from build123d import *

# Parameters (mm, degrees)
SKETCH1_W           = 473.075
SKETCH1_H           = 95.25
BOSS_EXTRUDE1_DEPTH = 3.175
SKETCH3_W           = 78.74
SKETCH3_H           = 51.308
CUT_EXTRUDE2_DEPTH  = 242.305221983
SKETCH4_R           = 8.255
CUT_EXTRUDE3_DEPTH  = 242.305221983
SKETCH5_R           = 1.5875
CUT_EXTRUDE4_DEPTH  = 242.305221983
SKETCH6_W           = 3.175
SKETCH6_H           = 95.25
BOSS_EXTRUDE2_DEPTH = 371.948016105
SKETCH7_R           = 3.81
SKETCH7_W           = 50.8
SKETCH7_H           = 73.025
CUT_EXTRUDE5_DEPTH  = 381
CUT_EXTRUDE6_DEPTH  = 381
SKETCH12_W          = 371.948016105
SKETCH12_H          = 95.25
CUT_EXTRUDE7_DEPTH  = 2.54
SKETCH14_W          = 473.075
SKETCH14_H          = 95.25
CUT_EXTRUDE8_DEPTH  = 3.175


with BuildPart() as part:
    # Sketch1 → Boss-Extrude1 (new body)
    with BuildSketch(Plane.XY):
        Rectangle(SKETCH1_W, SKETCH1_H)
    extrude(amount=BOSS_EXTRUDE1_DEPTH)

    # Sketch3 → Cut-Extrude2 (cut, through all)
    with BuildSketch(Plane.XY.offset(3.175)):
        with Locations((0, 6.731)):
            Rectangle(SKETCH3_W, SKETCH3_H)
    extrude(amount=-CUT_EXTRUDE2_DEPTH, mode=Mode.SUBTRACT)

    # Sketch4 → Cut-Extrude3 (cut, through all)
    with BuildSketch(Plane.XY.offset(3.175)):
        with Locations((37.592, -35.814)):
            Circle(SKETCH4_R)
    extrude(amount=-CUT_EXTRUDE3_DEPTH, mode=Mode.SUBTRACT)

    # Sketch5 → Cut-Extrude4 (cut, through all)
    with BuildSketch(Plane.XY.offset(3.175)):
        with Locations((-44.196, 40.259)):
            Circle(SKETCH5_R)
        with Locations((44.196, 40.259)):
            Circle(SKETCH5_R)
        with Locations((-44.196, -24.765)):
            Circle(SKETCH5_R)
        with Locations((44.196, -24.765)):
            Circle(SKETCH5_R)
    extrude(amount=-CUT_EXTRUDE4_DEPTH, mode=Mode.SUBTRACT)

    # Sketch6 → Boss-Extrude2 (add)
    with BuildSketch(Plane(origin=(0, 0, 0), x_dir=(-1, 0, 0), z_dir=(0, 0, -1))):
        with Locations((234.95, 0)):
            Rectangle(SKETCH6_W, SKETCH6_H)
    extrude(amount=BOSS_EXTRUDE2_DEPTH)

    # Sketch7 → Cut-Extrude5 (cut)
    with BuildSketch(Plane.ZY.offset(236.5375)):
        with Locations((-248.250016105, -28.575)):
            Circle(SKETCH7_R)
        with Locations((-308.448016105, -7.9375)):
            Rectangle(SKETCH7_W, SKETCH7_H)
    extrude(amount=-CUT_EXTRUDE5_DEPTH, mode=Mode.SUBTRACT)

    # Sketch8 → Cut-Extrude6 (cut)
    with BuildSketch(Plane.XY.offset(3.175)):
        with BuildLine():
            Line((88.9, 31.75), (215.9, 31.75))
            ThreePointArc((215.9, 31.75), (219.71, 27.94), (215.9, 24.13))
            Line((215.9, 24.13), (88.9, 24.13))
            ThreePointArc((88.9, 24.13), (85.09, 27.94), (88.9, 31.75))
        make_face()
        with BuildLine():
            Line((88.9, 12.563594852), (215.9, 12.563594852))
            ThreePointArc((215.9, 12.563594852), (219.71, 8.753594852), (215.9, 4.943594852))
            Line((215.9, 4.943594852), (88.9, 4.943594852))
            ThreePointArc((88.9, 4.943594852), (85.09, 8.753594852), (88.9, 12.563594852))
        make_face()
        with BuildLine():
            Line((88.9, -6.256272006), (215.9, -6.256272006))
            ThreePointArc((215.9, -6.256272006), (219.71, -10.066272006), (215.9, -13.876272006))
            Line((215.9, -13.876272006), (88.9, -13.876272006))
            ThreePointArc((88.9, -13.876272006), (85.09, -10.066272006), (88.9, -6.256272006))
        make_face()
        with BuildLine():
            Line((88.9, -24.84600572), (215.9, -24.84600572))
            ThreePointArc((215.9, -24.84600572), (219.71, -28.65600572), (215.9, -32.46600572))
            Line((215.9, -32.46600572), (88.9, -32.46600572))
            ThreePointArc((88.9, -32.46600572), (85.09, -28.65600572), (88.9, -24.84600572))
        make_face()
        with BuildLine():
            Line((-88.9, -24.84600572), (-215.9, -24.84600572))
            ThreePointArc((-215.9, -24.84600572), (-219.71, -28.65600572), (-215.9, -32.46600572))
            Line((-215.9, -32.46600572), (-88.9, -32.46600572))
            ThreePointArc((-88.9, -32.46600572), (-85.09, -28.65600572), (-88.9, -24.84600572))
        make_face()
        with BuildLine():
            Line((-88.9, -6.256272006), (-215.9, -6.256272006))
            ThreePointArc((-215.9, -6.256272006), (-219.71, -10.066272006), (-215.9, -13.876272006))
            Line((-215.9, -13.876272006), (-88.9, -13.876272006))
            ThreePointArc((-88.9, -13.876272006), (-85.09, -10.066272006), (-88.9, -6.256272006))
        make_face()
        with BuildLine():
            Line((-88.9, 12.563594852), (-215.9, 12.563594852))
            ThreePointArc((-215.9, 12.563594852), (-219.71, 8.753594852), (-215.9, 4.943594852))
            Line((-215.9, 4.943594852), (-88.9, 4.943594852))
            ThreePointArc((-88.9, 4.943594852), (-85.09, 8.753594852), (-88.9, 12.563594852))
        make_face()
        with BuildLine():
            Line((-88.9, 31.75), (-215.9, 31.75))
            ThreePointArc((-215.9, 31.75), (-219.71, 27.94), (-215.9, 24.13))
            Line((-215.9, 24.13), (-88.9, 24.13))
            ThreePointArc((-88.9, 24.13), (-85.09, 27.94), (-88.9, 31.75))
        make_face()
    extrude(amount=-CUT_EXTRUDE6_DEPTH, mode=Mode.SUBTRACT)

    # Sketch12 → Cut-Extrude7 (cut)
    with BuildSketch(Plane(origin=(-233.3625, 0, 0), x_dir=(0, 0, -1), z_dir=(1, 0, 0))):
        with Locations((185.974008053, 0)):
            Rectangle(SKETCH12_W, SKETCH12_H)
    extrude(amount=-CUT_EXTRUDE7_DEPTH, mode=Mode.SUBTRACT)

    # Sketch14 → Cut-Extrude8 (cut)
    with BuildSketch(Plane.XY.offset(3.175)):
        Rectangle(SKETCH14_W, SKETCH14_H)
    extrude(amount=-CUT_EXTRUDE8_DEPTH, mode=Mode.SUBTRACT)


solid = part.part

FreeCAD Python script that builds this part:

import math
import FreeCAD as App
import Part
import Sketcher

V = App.Vector
Q = App.Units.Quantity

doc = App.newDocument("Part")
body = doc.addObject("PartDesign::Body", "Body")

sketch1 = doc.addObject("Sketcher::SketchObject", "Sketch")
body.addObject(sketch1)
sketch1.AttachmentSupport = (doc.XY_Plane, [""])
sketch1.MapMode = "FlatFace"
sketch1.addGeometry(Part.LineSegment(V(-237, 48, 0), V(-237, -48, 0)), False)
sketch1.addGeometry(Part.LineSegment(V(-237, -48, 0), V(237, -48, 0)), False)
sketch1.addGeometry(Part.LineSegment(V(237, -48, 0), V(237, 48, 0)), False)
sketch1.addGeometry(Part.LineSegment(V(237, 48, 0), V(-237, 48, 0)), False)
sketch1.addConstraint(Sketcher.Constraint("Coincident", 0, 2, 1, 1))
sketch1.addConstraint(Sketcher.Constraint("Coincident", 1, 2, 2, 1))
sketch1.addConstraint(Sketcher.Constraint("Coincident", 2, 2, 3, 1))
sketch1.addConstraint(Sketcher.Constraint("Coincident", 3, 2, 0, 1))
sketch1.addConstraint(Sketcher.Constraint("Vertical", 0))
sketch1.addConstraint(Sketcher.Constraint("Horizontal", 1))
sketch1.addConstraint(Sketcher.Constraint("Vertical", 2))
sketch1.addConstraint(Sketcher.Constraint("Horizontal", 3))
sketch1.addConstraint(Sketcher.Constraint("Symmetric", 0, 2, 2, 2, -1, 1))
sketch1.addConstraint(Sketcher.Constraint("DistanceY", 0, 2, 0, 1, Q("3.75 in")))
sketch1.addConstraint(Sketcher.Constraint("DistanceX", 1, 1, 1, 2, Q("18.625 in")))
pad1 = doc.addObject("PartDesign::Pad", "Pad")
body.addObject(pad1)
pad1.Profile = sketch1
pad1.Length = Q("0.125 in")

sketch2 = doc.addObject("Sketcher::SketchObject", "Sketch001")
body.addObject(sketch2)
sketch2.AttachmentSupport = (doc.XY_Plane, [""])
sketch2.MapMode = "FlatFace"
sketch2.AttachmentOffset = App.Placement(V(0, 0, 0.125 * 25.4), App.Rotation())
sketch2.addGeometry(Part.LineSegment(V(-39, 32, 0), V(-39, -19, 0)), False)
sketch2.addGeometry(Part.LineSegment(V(-39, -19, 0), V(39, -19, 0)), False)
sketch2.addGeometry(Part.LineSegment(V(39, -19, 0), V(39, 32, 0)), False)
sketch2.addGeometry(Part.LineSegment(V(39, 32, 0), V(-39, 32, 0)), False)
sketch2.addConstraint(Sketcher.Constraint("Coincident", 0, 2, 1, 1))
sketch2.addConstraint(Sketcher.Constraint("Coincident", 1, 2, 2, 1))
sketch2.addConstraint(Sketcher.Constraint("Coincident", 2, 2, 3, 1))
sketch2.addConstraint(Sketcher.Constraint("Coincident", 3, 2, 0, 1))
sketch2.addConstraint(Sketcher.Constraint("Vertical", 0))
sketch2.addConstraint(Sketcher.Constraint("Horizontal", 1))
sketch2.addConstraint(Sketcher.Constraint("Vertical", 2))
sketch2.addConstraint(Sketcher.Constraint("Horizontal", 3))
sketch2.addConstraint(Sketcher.Constraint("DistanceX", 1, 1, 1, 2, Q("3.1 in")))
sketch2.addConstraint(Sketcher.Constraint("DistanceY", 0, 2, 0, 1, Q("2.02 in")))
sketch2.addConstraint(Sketcher.Constraint("DistanceX", 0, 2, -1, 1, Q("1.55 in")))
sketch2.addConstraint(Sketcher.Constraint("DistanceY", 0, 2, -1, 1, Q("0.745 in")))
pocket1 = doc.addObject("PartDesign::Pocket", "Pocket")
body.addObject(pocket1)
pocket1.Profile = sketch2
pocket1.Type = "ThroughAll"

sketch3 = doc.addObject("Sketcher::SketchObject", "Sketch002")
body.addObject(sketch3)
sketch3.AttachmentSupport = (doc.XY_Plane, [""])
sketch3.MapMode = "FlatFace"
sketch3.AttachmentOffset = App.Placement(V(0, 0, 0.125 * 25.4), App.Rotation())
sketch3.addGeometry(Part.Circle(V(38, -36, 0), V(0, 0, 1), 8), False)
sketch3.addConstraint(Sketcher.Constraint("Diameter", 0, Q("0.65 in")))
sketch3.addConstraint(Sketcher.Constraint("DistanceX", -1, 1, 0, 3, Q("1.48 in")))
sketch3.addConstraint(Sketcher.Constraint("DistanceY", 0, 3, -1, 1, Q("1.41 in")))
pocket2 = doc.addObject("PartDesign::Pocket", "Pocket001")
body.addObject(pocket2)
pocket2.Profile = sketch3
pocket2.Type = "ThroughAll"

sketch4 = doc.addObject("Sketcher::SketchObject", "Sketch003")
body.addObject(sketch4)
sketch4.AttachmentSupport = (doc.XY_Plane, [""])
sketch4.MapMode = "FlatFace"
sketch4.AttachmentOffset = App.Placement(V(0, 0, 0.125 * 25.4), App.Rotation())
sketch4.addGeometry(Part.Circle(V(-44.2, 40.3, 0), V(0, 0, 1), 1.6), False)
sketch4.addGeometry(Part.Circle(V(44.2, 40.3, 0), V(0, 0, 1), 1.6), False)
sketch4.addGeometry(Part.Circle(V(-44.2, -24.8, 0), V(0, 0, 1), 1.6), False)
sketch4.addGeometry(Part.Circle(V(44.2, -24.8, 0), V(0, 0, 1), 1.6), False)
sketch4.addConstraint(Sketcher.Constraint("Equal", 0, 1))
sketch4.addConstraint(Sketcher.Constraint("Equal", 1, 2))
sketch4.addConstraint(Sketcher.Constraint("Equal", 2, 3))
sketch4.addConstraint(Sketcher.Constraint("Symmetric", 0, 3, 1, 3, -2))
sketch4.addConstraint(Sketcher.Constraint("Symmetric", 2, 3, 3, 3, -2))
sketch4.addConstraint(Sketcher.Constraint("Vertical", 0, 3, 2, 3))
sketch4.addConstraint(Sketcher.Constraint("Diameter", 0, Q("0.125 in")))
sketch4.addConstraint(Sketcher.Constraint("DistanceX", 0, 3, -1, 1, Q("1.74 in")))
sketch4.addConstraint(Sketcher.Constraint("DistanceY", 2, 3, 0, 3, Q("2.56 in")))
sketch4.addConstraint(Sketcher.Constraint("DistanceY", -1, 1, 0, 3, Q("1.585 in")))
pocket3 = doc.addObject("PartDesign::Pocket", "Pocket002")
body.addObject(pocket3)
pocket3.Profile = sketch4
pocket3.Type = "ThroughAll"

sketch5 = doc.addObject("Sketcher::SketchObject", "Sketch004")
body.addObject(sketch5)
sketch5.AttachmentSupport = (doc.XY_Plane, [""])
sketch5.MapMode = "FlatFace"
sketch5.addGeometry(Part.LineSegment(V(-233.4, 47.6, 0), V(-233.4, -47.6, 0)), False)
sketch5.addGeometry(Part.LineSegment(V(-233.4, -47.6, 0), V(-236.5, -47.6, 0)), False)
sketch5.addGeometry(Part.LineSegment(V(-236.5, -47.6, 0), V(-236.5, 47.6, 0)), False)
sketch5.addGeometry(Part.LineSegment(V(-236.5, 47.6, 0), V(-233.4, 47.6, 0)), False)
sketch5.addConstraint(Sketcher.Constraint("Coincident", 0, 2, 1, 1))
sketch5.addConstraint(Sketcher.Constraint("Coincident", 1, 2, 2, 1))
sketch5.addConstraint(Sketcher.Constraint("Coincident", 2, 2, 3, 1))
sketch5.addConstraint(Sketcher.Constraint("Coincident", 3, 2, 0, 1))
sketch5.addConstraint(Sketcher.Constraint("Vertical", 0))
sketch5.addConstraint(Sketcher.Constraint("Horizontal", 1))
sketch5.addConstraint(Sketcher.Constraint("Vertical", 2))
sketch5.addConstraint(Sketcher.Constraint("Horizontal", 3))
sketch5.addConstraint(Sketcher.Constraint("DistanceY", 0, 2, 0, 1, Q("3.75 in")))
sketch5.addConstraint(Sketcher.Constraint("DistanceX", 1, 2, 1, 1, Q("0.125 in")))
sketch5.addConstraint(Sketcher.Constraint("DistanceX", 0, 2, -1, 1, Q("9.1875 in")))
sketch5.addConstraint(Sketcher.Constraint("DistanceY", 0, 2, -1, 1, Q("1.875 in")))
pad2 = doc.addObject("PartDesign::Pad", "Pad001")
body.addObject(pad2)
pad2.Profile = sketch5
pad2.Length = 371.948016
pad2.Reversed = True

sketch6 = doc.addObject("Sketcher::SketchObject", "Sketch005")
body.addObject(sketch6)
sketch6.AttachmentSupport = (doc.YZ_Plane, [""])
sketch6.MapMode = "FlatFace"
sketch6.AttachmentOffset = App.Placement(V(0, 0, -9.3125 * 25.4), App.Rotation())
sketch6.addGeometry(Part.Circle(V(-28.6, -248.3, 0), V(0, 0, 1), 3.8), False)
sketch6.addGeometry(Part.LineSegment(V(28.6, -333.8, 0), V(-44.5, -333.8, 0)), False)
sketch6.addGeometry(Part.LineSegment(V(-44.5, -333.8, 0), V(-44.5, -283, 0)), False)
sketch6.addGeometry(Part.LineSegment(V(-44.5, -283, 0), V(28.6, -283, 0)), False)
sketch6.addGeometry(Part.LineSegment(V(28.6, -283, 0), V(28.6, -333.8, 0)), False)
sketch6.addConstraint(Sketcher.Constraint("Coincident", 1, 2, 2, 1))
sketch6.addConstraint(Sketcher.Constraint("Coincident", 2, 2, 3, 1))
sketch6.addConstraint(Sketcher.Constraint("Coincident", 3, 2, 4, 1))
sketch6.addConstraint(Sketcher.Constraint("Coincident", 4, 2, 1, 1))
sketch6.addConstraint(Sketcher.Constraint("Horizontal", 1))
sketch6.addConstraint(Sketcher.Constraint("Vertical", 2))
sketch6.addConstraint(Sketcher.Constraint("Horizontal", 3))
sketch6.addConstraint(Sketcher.Constraint("Vertical", 4))
sketch6.addConstraint(Sketcher.Constraint("Diameter", 0, Q("0.3 in")))
sketch6.addConstraint(Sketcher.Constraint("DistanceY", 2, 1, 2, 2, Q("2 in")))
sketch6.addConstraint(Sketcher.Constraint("DistanceX", 1, 2, 1, 1, Q("2.875 in")))
sketch6.addConstraint(Sketcher.Constraint("DistanceX", 1, 2, -1, 1, Q("1.75 in")))
sketch6.addConstraint(Sketcher.Constraint("DistanceY", 1, 2, 0, 3, Q("3.37 in")))
sketch6.addConstraint(Sketcher.Constraint("DistanceX", 0, 3, 3, 2, Q("2.25 in")))
sketch6.addConstraint(Sketcher.Constraint("DistanceY", 0, 3, -1, 1, 248.250016))
pocket4 = doc.addObject("PartDesign::Pocket", "Pocket003")
body.addObject(pocket4)
pocket4.Profile = sketch6
pocket4.Length = Q("15 in")
pocket4.Reversed = True

sketch7 = doc.addObject("Sketcher::SketchObject", "Sketch006")
body.addObject(sketch7)
sketch7.AttachmentSupport = (doc.XY_Plane, [""])
sketch7.MapMode = "FlatFace"
sketch7.AttachmentOffset = App.Placement(V(0, 0, 0.125 * 25.4), App.Rotation())
sketch7.addGeometry(Part.LineSegment(V(215.9, 31.8, 0), V(88.9, 31.8, 0)), False)
sketch7.addGeometry(Part.ArcOfCircle(Part.Circle(V(88.9, 27.9, 0), V(0, 0, 1), 3.8), math.radians(90), math.radians(270)), False)
sketch7.addGeometry(Part.LineSegment(V(88.9, 24.1, 0), V(215.9, 24.1, 0)), False)
sketch7.addGeometry(Part.ArcOfCircle(Part.Circle(V(215.9, 27.9, 0), V(0, 0, 1), 3.8), math.radians(-90), math.radians(90)), False)
sketch7.addGeometry(Part.LineSegment(V(215.9, 12.6, 0), V(88.9, 12.6, 0)), False)
sketch7.addGeometry(Part.ArcOfCircle(Part.Circle(V(88.9, 8.8, 0), V(0, 0, 1), 3.8), math.radians(90), math.radians(270)), False)
sketch7.addGeometry(Part.LineSegment(V(88.9, 4.9, 0), V(215.9, 4.9, 0)), False)
sketch7.addGeometry(Part.ArcOfCircle(Part.Circle(V(215.9, 8.8, 0), V(0, 0, 1), 3.8), math.radians(-90), math.radians(90)), False)
sketch7.addGeometry(Part.LineSegment(V(215.9, -6.3, 0), V(88.9, -6.3, 0)), False)
sketch7.addGeometry(Part.ArcOfCircle(Part.Circle(V(88.9, -10.1, 0), V(0, 0, 1), 3.8), math.radians(90), math.radians(270)), False)
sketch7.addGeometry(Part.LineSegment(V(88.9, -13.9, 0), V(215.9, -13.9, 0)), False)
sketch7.addGeometry(Part.ArcOfCircle(Part.Circle(V(215.9, -10.1, 0), V(0, 0, 1), 3.8), math.radians(-90), math.radians(90)), False)
sketch7.addGeometry(Part.LineSegment(V(215.9, -24.8, 0), V(88.9, -24.8, 0)), False)
sketch7.addGeometry(Part.ArcOfCircle(Part.Circle(V(88.9, -28.7, 0), V(0, 0, 1), 3.8), math.radians(90), math.radians(270)), False)
sketch7.addGeometry(Part.LineSegment(V(88.9, -32.5, 0), V(215.9, -32.5, 0)), False)
sketch7.addGeometry(Part.ArcOfCircle(Part.Circle(V(215.9, -28.7, 0), V(0, 0, 1), 3.8), math.radians(-90), math.radians(90)), False)
sketch7.addGeometry(Part.LineSegment(V(-88.9, -24.8, 0), V(-215.9, -24.8, 0)), False)
sketch7.addGeometry(Part.ArcOfCircle(Part.Circle(V(-215.9, -28.7, 0), V(0, 0, 1), 3.8), math.radians(90), math.radians(270)), False)
sketch7.addGeometry(Part.LineSegment(V(-215.9, -32.5, 0), V(-88.9, -32.5, 0)), False)
sketch7.addGeometry(Part.ArcOfCircle(Part.Circle(V(-88.9, -28.7, 0), V(0, 0, 1), 3.8), math.radians(-90), math.radians(90)), False)
sketch7.addGeometry(Part.LineSegment(V(-88.9, -6.3, 0), V(-215.9, -6.3, 0)), False)
sketch7.addGeometry(Part.ArcOfCircle(Part.Circle(V(-215.9, -10.1, 0), V(0, 0, 1), 3.8), math.radians(90), math.radians(270)), False)
sketch7.addGeometry(Part.LineSegment(V(-215.9, -13.9, 0), V(-88.9, -13.9, 0)), False)
sketch7.addGeometry(Part.ArcOfCircle(Part.Circle(V(-88.9, -10.1, 0), V(0, 0, 1), 3.8), math.radians(-90), math.radians(90)), False)
sketch7.addGeometry(Part.LineSegment(V(-88.9, 12.6, 0), V(-215.9, 12.6, 0)), False)
sketch7.addGeometry(Part.ArcOfCircle(Part.Circle(V(-215.9, 8.8, 0), V(0, 0, 1), 3.8), math.radians(90), math.radians(270)), False)
sketch7.addGeometry(Part.LineSegment(V(-215.9, 4.9, 0), V(-88.9, 4.9, 0)), False)
sketch7.addGeometry(Part.ArcOfCircle(Part.Circle(V(-88.9, 8.8, 0), V(0, 0, 1), 3.8), math.radians(-90), math.radians(90)), False)
sketch7.addGeometry(Part.LineSegment(V(-88.9, 31.8, 0), V(-215.9, 31.8, 0)), False)
sketch7.addGeometry(Part.ArcOfCircle(Part.Circle(V(-215.9, 27.9, 0), V(0, 0, 1), 3.8), math.radians(90), math.radians(270)), False)
sketch7.addGeometry(Part.LineSegment(V(-215.9, 24.1, 0), V(-88.9, 24.1, 0)), False)
sketch7.addGeometry(Part.ArcOfCircle(Part.Circle(V(-88.9, 27.9, 0), V(0, 0, 1), 3.8), math.radians(-90), math.radians(90)), False)
sketch7.addConstraint(Sketcher.Constraint("Tangent", 0, 2, 1, 1))
sketch7.addConstraint(Sketcher.Constraint("Tangent", 1, 2, 2, 1))
sketch7.addConstraint(Sketcher.Constraint("Tangent", 2, 2, 3, 1))
sketch7.addConstraint(Sketcher.Constraint("Tangent", 3, 2, 0, 1))
sketch7.addConstraint(Sketcher.Constraint("Tangent", 4, 2, 5, 1))
sketch7.addConstraint(Sketcher.Constraint("Tangent", 5, 2, 6, 1))
sketch7.addConstraint(Sketcher.Constraint("Tangent", 6, 2, 7, 1))
sketch7.addConstraint(Sketcher.Constraint("Tangent", 7, 2, 4, 1))
sketch7.addConstraint(Sketcher.Constraint("Tangent", 8, 2, 9, 1))
sketch7.addConstraint(Sketcher.Constraint("Tangent", 9, 2, 10, 1))
sketch7.addConstraint(Sketcher.Constraint("Tangent", 10, 2, 11, 1))
sketch7.addConstraint(Sketcher.Constraint("Tangent", 11, 2, 8, 1))
sketch7.addConstraint(Sketcher.Constraint("Tangent", 12, 2, 13, 1))
sketch7.addConstraint(Sketcher.Constraint("Tangent", 13, 2, 14, 1))
sketch7.addConstraint(Sketcher.Constraint("Tangent", 14, 2, 15, 1))
sketch7.addConstraint(Sketcher.Constraint("Tangent", 15, 2, 12, 1))
sketch7.addConstraint(Sketcher.Constraint("Tangent", 16, 2, 17, 1))
sketch7.addConstraint(Sketcher.Constraint("Tangent", 17, 2, 18, 1))
sketch7.addConstraint(Sketcher.Constraint("Tangent", 18, 2, 19, 1))
sketch7.addConstraint(Sketcher.Constraint("Tangent", 19, 2, 16, 1))
sketch7.addConstraint(Sketcher.Constraint("Tangent", 20, 2, 21, 1))
sketch7.addConstraint(Sketcher.Constraint("Tangent", 21, 2, 22, 1))
sketch7.addConstraint(Sketcher.Constraint("Tangent", 22, 2, 23, 1))
sketch7.addConstraint(Sketcher.Constraint("Tangent", 23, 2, 20, 1))
sketch7.addConstraint(Sketcher.Constraint("Tangent", 24, 2, 25, 1))
sketch7.addConstraint(Sketcher.Constraint("Tangent", 25, 2, 26, 1))
sketch7.addConstraint(Sketcher.Constraint("Tangent", 26, 2, 27, 1))
sketch7.addConstraint(Sketcher.Constraint("Tangent", 27, 2, 24, 1))
sketch7.addConstraint(Sketcher.Constraint("Tangent", 28, 2, 29, 1))
sketch7.addConstraint(Sketcher.Constraint("Tangent", 29, 2, 30, 1))
sketch7.addConstraint(Sketcher.Constraint("Tangent", 30, 2, 31, 1))
sketch7.addConstraint(Sketcher.Constraint("Tangent", 31, 2, 28, 1))
sketch7.addConstraint(Sketcher.Constraint("Horizontal", 0))
sketch7.addConstraint(Sketcher.Constraint("Horizontal", 2))
sketch7.addConstraint(Sketcher.Constraint("Horizontal", 4))
sketch7.addConstraint(Sketcher.Constraint("Horizontal", 6))
sketch7.addConstraint(Sketcher.Constraint("Horizontal", 8))
sketch7.addConstraint(Sketcher.Constraint("Horizontal", 10))
sketch7.addConstraint(Sketcher.Constraint("Horizontal", 12))
sketch7.addConstraint(Sketcher.Constraint("Horizontal", 14))
sketch7.addConstraint(Sketcher.Constraint("Horizontal", 16))
sketch7.addConstraint(Sketcher.Constraint("Horizontal", 18))
sketch7.addConstraint(Sketcher.Constraint("Horizontal", 20))
sketch7.addConstraint(Sketcher.Constraint("Horizontal", 22))
sketch7.addConstraint(Sketcher.Constraint("Horizontal", 24))
sketch7.addConstraint(Sketcher.Constraint("Horizontal", 26))
sketch7.addConstraint(Sketcher.Constraint("Horizontal", 28))
sketch7.addConstraint(Sketcher.Constraint("Horizontal", 30))
sketch7.addConstraint(Sketcher.Constraint("Equal", 3, 5))
sketch7.addConstraint(Sketcher.Constraint("Equal", 7, 9))
sketch7.addConstraint(Sketcher.Constraint("Equal", 11, 13))
sketch7.addConstraint(Sketcher.Constraint("Equal", 15, 17))
sketch7.addConstraint(Sketcher.Constraint("Equal", 19, 21))
sketch7.addConstraint(Sketcher.Constraint("Equal", 23, 25))
sketch7.addConstraint(Sketcher.Constraint("Equal", 27, 29))
sketch7.addConstraint(Sketcher.Constraint("Symmetric", 15, 3, 17, 3, -2))
sketch7.addConstraint(Sketcher.Constraint("Symmetric", 11, 3, 21, 3, -2))
sketch7.addConstraint(Sketcher.Constraint("Symmetric", 7, 3, 25, 3, -2))
sketch7.addConstraint(Sketcher.Constraint("Symmetric", 3, 3, 29, 3, -2))
sketch7.addConstraint(Sketcher.Constraint("Vertical", 1, 3, 5, 3))
sketch7.addConstraint(Sketcher.Constraint("Vertical", 3, 3, 7, 3))
sketch7.addConstraint(Sketcher.Constraint("Vertical", 5, 3, 9, 3))
sketch7.addConstraint(Sketcher.Constraint("Vertical", 7, 3, 11, 3))
sketch7.addConstraint(Sketcher.Constraint("Vertical", 9, 3, 13, 3))
sketch7.addConstraint(Sketcher.Constraint("Vertical", 11, 3, 15, 3))
sketch7.addConstraint(Sketcher.Constraint("Vertical", 19, 3, 23, 3))
sketch7.addConstraint(Sketcher.Constraint("Vertical", 23, 3, 27, 3))
sketch7.addConstraint(Sketcher.Constraint("Vertical", 27, 3, 31, 3))
sketch7.addConstraint(Sketcher.Constraint("Equal", 14, 16))
sketch7.addConstraint(Sketcher.Constraint("DistanceX", 0, 2, 0, 1, Q("5 in")))
sketch7.addConstraint(Sketcher.Constraint("Radius", 1, Q("0.15 in")))
sketch7.addConstraint(Sketcher.Constraint("DistanceX", 17, 3, 13, 3, Q("12 in")))
sketch7.addConstraint(Sketcher.Constraint("DistanceY", -1, 1, 1, 3, Q("1.1 in")))
sketch7.addConstraint(Sketcher.Constraint("DistanceY", 13, 3, 5, 3, 37.409601))
sketch7.addConstraint(Sketcher.Constraint("DistanceY", -1, 1, 5, 3, 8.753595))
sketch7.addConstraint(Sketcher.Constraint("DistanceY", 9, 3, -1, 1, 10.066272))
pocket5 = doc.addObject("PartDesign::Pocket", "Pocket004")
body.addObject(pocket5)
pocket5.Profile = sketch7
pocket5.Length = Q("15 in")

sketch8 = doc.addObject("Sketcher::SketchObject", "Sketch007")
body.addObject(sketch8)
sketch8.AttachmentSupport = (doc.YZ_Plane, [""])
sketch8.MapMode = "FlatFace"
sketch8.AttachmentOffset = App.Placement(V(0, 0, -9.1875 * 25.4), App.Rotation())
sketch8.addGeometry(Part.LineSegment(V(48, 0, 0), V(-48, 0, 0)), False)
sketch8.addGeometry(Part.LineSegment(V(-48, 0, 0), V(-48, -372, 0)), False)
sketch8.addGeometry(Part.LineSegment(V(-48, -372, 0), V(48, -372, 0)), False)
sketch8.addGeometry(Part.LineSegment(V(48, -372, 0), V(48, 0, 0)), False)
sketch8.addConstraint(Sketcher.Constraint("Coincident", 0, 2, 1, 1))
sketch8.addConstraint(Sketcher.Constraint("Coincident", 1, 2, 2, 1))
sketch8.addConstraint(Sketcher.Constraint("Coincident", 2, 2, 3, 1))
sketch8.addConstraint(Sketcher.Constraint("Coincident", 3, 2, 0, 1))
sketch8.addConstraint(Sketcher.Constraint("Horizontal", 0))
sketch8.addConstraint(Sketcher.Constraint("Vertical", 1))
sketch8.addConstraint(Sketcher.Constraint("Horizontal", 2))
sketch8.addConstraint(Sketcher.Constraint("Vertical", 3))
sketch8.addConstraint(Sketcher.Constraint("Symmetric", 0, 2, 3, 2, -1, 1))
sketch8.addConstraint(Sketcher.Constraint("DistanceX", 0, 2, 0, 1, Q("3.75 in")))
sketch8.addConstraint(Sketcher.Constraint("DistanceY", 1, 2, 1, 1, 371.948016))
pocket6 = doc.addObject("PartDesign::Pocket", "Pocket005")
body.addObject(pocket6)
pocket6.Profile = sketch8
pocket6.Length = Q("0.1 in")

sketch9 = doc.addObject("Sketcher::SketchObject", "Sketch008")
body.addObject(sketch9)
sketch9.AttachmentSupport = (doc.XY_Plane, [""])
sketch9.MapMode = "FlatFace"
sketch9.AttachmentOffset = App.Placement(V(0, 0, 0.125 * 25.4), App.Rotation())
sketch9.addGeometry(Part.LineSegment(V(-237, 48, 0), V(-237, -48, 0)), False)
sketch9.addGeometry(Part.LineSegment(V(-237, -48, 0), V(237, -48, 0)), False)
sketch9.addGeometry(Part.LineSegment(V(237, -48, 0), V(237, 48, 0)), False)
sketch9.addGeometry(Part.LineSegment(V(237, 48, 0), V(-237, 48, 0)), False)
sketch9.addConstraint(Sketcher.Constraint("Coincident", 0, 2, 1, 1))
sketch9.addConstraint(Sketcher.Constraint("Coincident", 1, 2, 2, 1))
sketch9.addConstraint(Sketcher.Constraint("Coincident", 2, 2, 3, 1))
sketch9.addConstraint(Sketcher.Constraint("Coincident", 3, 2, 0, 1))
sketch9.addConstraint(Sketcher.Constraint("Vertical", 0))
sketch9.addConstraint(Sketcher.Constraint("Horizontal", 1))
sketch9.addConstraint(Sketcher.Constraint("Vertical", 2))
sketch9.addConstraint(Sketcher.Constraint("Horizontal", 3))
sketch9.addConstraint(Sketcher.Constraint("Symmetric", 0, 2, 2, 2, -1, 1))
sketch9.addConstraint(Sketcher.Constraint("DistanceY", 0, 2, 0, 1, Q("3.75 in")))
sketch9.addConstraint(Sketcher.Constraint("DistanceX", 1, 1, 1, 2, Q("18.625 in")))
pocket7 = doc.addObject("PartDesign::Pocket", "Pocket006")
body.addObject(pocket7)
pocket7.Profile = sketch9
pocket7.Length = Q("0.125 in")

doc.recompute()
